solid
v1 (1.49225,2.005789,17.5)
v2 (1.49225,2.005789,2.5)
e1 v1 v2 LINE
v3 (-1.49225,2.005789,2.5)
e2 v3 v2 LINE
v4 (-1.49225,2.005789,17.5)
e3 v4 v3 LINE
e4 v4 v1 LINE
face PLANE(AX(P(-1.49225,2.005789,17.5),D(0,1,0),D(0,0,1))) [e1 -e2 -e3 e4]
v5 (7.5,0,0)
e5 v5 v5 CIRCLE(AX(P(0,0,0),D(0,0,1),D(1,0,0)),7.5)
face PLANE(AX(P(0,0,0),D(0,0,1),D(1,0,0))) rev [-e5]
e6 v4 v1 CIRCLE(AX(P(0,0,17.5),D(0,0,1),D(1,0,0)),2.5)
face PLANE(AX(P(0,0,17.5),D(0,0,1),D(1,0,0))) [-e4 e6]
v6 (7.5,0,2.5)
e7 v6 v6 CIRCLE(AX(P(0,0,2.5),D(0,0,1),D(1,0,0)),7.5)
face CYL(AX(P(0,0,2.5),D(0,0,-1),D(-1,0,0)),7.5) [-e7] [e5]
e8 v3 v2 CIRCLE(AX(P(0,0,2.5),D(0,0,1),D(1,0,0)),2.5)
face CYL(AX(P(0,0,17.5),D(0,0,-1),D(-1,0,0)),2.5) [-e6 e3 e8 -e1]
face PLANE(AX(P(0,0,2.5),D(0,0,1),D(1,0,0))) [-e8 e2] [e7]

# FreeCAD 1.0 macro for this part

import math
import FreeCAD as App
import Part
import Sketcher
from FreeCAD import Vector

doc = App.newDocument("Part")
body = doc.addObject("PartDesign::Body", "Body")

sketch1 = body.newObject("Sketcher::SketchObject", "Sketch")
sketch1.AttachmentSupport = (doc.getObject("XY_Plane"), [""])
sketch1.MapMode = "FlatFace"
sketch1.addGeometry(Part.Circle(Vector(0, 0, 0), Vector(0, 0, 1), 8), False)
sketch1.addConstraint([
    Sketcher.Constraint("Coincident", 0, 3, -1, 1),
    Sketcher.Constraint("Diameter", 0, 15.0),
])
pad1 = body.newObject("PartDesign::Pad", "Pad")
pad1.Profile = sketch1
pad1.Length = 2.5

sketch2 = body.newObject("Sketcher::SketchObject", "Sketch001")
sketch2.AttachmentSupport = (doc.getObject("XY_Plane"), [""])
sketch2.MapMode = "FlatFace"
sketch2.AttachmentOffset = App.Placement(Vector(0, 0, 2.5), App.Rotation())
sketch2.addGeometry([
    Part.LineSegment(Vector(1.5, 2, 0), Vector(-1.5, 2, 0)),
    Part.ArcOfCircle(Part.Circle(Vector(0, 0, 0), Vector(0, 0, 1), 2.5), math.radians(127), math.radians(413)),
], False)
sketch2.addConstraint([
    Sketcher.Constraint("Coincident", 0, 1, 1, 2),
    Sketcher.Constraint("Coincident", 1, 1, 0, 2),
    Sketcher.Constraint("Horizontal", 0),
    Sketcher.Constraint("Coincident", 1, 3, -1, 1),
    Sketcher.Constraint("Radius", 1, 2.5),
    Sketcher.Constraint("DistanceX", 0, 2, 0, 1, 2.9845),
])
pad2 = body.newObject("PartDesign::Pad", "Pad001")
pad2.Profile = sketch2
pad2.Length = 15

doc.recompute()
